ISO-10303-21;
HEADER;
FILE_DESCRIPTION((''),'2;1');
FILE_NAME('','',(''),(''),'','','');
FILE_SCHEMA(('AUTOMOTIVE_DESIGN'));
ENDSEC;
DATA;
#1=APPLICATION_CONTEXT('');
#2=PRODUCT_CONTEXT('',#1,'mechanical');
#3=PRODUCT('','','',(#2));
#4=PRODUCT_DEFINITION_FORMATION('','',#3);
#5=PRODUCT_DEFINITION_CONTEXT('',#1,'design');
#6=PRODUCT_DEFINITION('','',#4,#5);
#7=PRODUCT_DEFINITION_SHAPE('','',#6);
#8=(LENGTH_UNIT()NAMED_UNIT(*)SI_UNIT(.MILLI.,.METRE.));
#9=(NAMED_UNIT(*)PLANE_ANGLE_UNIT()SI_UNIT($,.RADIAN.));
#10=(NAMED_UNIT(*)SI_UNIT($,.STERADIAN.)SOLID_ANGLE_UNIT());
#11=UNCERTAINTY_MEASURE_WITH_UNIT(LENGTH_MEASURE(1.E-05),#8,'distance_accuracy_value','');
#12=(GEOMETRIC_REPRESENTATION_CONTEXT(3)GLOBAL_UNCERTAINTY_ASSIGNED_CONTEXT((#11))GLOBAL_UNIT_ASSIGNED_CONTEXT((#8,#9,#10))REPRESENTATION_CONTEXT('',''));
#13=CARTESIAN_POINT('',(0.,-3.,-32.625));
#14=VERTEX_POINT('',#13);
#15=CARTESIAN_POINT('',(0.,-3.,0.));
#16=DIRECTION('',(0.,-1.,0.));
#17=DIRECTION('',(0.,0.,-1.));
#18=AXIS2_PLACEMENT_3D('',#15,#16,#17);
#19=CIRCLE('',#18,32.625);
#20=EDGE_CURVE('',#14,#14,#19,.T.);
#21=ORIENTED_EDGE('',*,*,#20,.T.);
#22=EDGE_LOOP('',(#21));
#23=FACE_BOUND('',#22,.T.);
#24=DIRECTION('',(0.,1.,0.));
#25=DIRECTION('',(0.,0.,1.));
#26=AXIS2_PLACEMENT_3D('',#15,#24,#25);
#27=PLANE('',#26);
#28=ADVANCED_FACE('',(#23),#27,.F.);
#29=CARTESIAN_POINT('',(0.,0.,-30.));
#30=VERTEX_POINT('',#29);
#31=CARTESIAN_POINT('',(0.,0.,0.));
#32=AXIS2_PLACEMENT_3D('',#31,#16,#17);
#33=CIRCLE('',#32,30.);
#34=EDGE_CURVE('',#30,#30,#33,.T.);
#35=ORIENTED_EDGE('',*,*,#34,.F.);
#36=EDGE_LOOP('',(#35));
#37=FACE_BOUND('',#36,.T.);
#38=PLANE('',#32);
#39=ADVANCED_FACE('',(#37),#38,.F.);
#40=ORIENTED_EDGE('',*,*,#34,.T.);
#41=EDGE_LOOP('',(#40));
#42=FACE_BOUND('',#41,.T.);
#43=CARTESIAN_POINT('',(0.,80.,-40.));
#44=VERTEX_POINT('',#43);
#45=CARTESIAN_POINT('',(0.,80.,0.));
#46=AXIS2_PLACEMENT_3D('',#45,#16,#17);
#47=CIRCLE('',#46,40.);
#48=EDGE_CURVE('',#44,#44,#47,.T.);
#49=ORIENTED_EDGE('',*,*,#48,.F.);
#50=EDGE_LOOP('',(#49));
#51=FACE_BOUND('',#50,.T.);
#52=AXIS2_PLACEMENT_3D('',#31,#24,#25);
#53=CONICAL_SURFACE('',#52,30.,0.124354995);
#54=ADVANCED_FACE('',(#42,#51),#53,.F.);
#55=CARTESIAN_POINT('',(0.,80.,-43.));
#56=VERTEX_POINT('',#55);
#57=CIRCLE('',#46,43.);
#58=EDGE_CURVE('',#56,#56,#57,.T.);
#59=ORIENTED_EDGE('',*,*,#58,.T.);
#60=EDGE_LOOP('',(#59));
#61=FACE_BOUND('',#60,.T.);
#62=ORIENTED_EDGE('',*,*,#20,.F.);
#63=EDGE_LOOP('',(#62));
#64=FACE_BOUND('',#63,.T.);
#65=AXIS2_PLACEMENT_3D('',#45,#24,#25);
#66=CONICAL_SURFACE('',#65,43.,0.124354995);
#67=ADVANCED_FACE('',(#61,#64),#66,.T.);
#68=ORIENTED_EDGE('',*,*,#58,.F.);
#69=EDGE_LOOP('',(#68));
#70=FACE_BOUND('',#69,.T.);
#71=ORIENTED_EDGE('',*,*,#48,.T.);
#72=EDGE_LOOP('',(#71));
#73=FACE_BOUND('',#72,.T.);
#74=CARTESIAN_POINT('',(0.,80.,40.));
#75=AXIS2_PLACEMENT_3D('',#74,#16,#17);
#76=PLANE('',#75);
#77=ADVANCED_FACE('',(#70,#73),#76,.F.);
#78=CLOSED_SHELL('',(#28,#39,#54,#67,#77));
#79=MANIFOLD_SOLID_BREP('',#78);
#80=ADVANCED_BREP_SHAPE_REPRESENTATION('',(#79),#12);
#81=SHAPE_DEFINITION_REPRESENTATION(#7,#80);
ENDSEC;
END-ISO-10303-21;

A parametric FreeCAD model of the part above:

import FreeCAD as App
import Part
import Sketcher

V = App.Vector
Q = App.Units.Quantity

doc = App.newDocument("Part")
body = doc.addObject("PartDesign::Body", "Body")

# Sketch on YZ plane
sketch1 = doc.addObject("Sketcher::SketchObject", "Sketch")
body.addObject(sketch1)
sketch1.AttachmentSupport = (doc.YZ_Plane, [""])
sketch1.MapMode = "FlatFace"
sketch1.addGeometry([
    Part.LineSegment(V(0, 0, 0), V(0, 30, 0)),  # 0
    Part.LineSegment(V(0, 30, 0), V(80, 40, 0)),  # 1
    Part.LineSegment(V(80, 40, 0), V(80, 43, 0)),  # 2
    Part.LineSegment(V(80, 43, 0), V(-3, 32.6, 0)),  # 3
    Part.LineSegment(V(-3, 32.6, 0), V(-3, 0, 0)),  # 4
    Part.LineSegment(V(-3, 0, 0), V(0, 0, 0)),  # 5
], False)
sketch1.addConstraint([
    Sketcher.Constraint("Coincident", 0, 2, 1, 1),
    Sketcher.Constraint("Coincident", 1, 2, 2, 1),
    Sketcher.Constraint("Coincident", 2, 2, 3, 1),
    Sketcher.Constraint("Coincident", 3, 2, 4, 1),
    Sketcher.Constraint("Coincident", 4, 2, 5, 1),
    Sketcher.Constraint("Coincident", 5, 2, 0, 1),
    Sketcher.Constraint("Vertical", 0),
    Sketcher.Constraint("Vertical", 2),
    Sketcher.Constraint("Vertical", 4),
    Sketcher.Constraint("Horizontal", 5),
    Sketcher.Constraint("Coincident", 5, 2, -1, 1),
    Sketcher.Constraint("Parallel", 1, 3),
    Sketcher.Constraint("Equal", 5, 2),
    Sketcher.Constraint("DistanceX", 5, 1, 5, 2, Q("3 mm")),
    Sketcher.Constraint("DistanceY", 0, 1, 0, 2, Q("30 mm")),
    Sketcher.Constraint("DistanceX", -1, 1, 1, 2, Q("80 mm")),
    Sketcher.Constraint("DistanceY", -1, 1, 1, 2, Q("40 mm")),
])
revolution = doc.addObject("PartDesign::Revolution", "Revolution")
body.addObject(revolution)
revolution.Profile = sketch1
revolution.ReferenceAxis = (sketch1, ["H_Axis"])
revolution.Angle = 360

doc.recompute()
